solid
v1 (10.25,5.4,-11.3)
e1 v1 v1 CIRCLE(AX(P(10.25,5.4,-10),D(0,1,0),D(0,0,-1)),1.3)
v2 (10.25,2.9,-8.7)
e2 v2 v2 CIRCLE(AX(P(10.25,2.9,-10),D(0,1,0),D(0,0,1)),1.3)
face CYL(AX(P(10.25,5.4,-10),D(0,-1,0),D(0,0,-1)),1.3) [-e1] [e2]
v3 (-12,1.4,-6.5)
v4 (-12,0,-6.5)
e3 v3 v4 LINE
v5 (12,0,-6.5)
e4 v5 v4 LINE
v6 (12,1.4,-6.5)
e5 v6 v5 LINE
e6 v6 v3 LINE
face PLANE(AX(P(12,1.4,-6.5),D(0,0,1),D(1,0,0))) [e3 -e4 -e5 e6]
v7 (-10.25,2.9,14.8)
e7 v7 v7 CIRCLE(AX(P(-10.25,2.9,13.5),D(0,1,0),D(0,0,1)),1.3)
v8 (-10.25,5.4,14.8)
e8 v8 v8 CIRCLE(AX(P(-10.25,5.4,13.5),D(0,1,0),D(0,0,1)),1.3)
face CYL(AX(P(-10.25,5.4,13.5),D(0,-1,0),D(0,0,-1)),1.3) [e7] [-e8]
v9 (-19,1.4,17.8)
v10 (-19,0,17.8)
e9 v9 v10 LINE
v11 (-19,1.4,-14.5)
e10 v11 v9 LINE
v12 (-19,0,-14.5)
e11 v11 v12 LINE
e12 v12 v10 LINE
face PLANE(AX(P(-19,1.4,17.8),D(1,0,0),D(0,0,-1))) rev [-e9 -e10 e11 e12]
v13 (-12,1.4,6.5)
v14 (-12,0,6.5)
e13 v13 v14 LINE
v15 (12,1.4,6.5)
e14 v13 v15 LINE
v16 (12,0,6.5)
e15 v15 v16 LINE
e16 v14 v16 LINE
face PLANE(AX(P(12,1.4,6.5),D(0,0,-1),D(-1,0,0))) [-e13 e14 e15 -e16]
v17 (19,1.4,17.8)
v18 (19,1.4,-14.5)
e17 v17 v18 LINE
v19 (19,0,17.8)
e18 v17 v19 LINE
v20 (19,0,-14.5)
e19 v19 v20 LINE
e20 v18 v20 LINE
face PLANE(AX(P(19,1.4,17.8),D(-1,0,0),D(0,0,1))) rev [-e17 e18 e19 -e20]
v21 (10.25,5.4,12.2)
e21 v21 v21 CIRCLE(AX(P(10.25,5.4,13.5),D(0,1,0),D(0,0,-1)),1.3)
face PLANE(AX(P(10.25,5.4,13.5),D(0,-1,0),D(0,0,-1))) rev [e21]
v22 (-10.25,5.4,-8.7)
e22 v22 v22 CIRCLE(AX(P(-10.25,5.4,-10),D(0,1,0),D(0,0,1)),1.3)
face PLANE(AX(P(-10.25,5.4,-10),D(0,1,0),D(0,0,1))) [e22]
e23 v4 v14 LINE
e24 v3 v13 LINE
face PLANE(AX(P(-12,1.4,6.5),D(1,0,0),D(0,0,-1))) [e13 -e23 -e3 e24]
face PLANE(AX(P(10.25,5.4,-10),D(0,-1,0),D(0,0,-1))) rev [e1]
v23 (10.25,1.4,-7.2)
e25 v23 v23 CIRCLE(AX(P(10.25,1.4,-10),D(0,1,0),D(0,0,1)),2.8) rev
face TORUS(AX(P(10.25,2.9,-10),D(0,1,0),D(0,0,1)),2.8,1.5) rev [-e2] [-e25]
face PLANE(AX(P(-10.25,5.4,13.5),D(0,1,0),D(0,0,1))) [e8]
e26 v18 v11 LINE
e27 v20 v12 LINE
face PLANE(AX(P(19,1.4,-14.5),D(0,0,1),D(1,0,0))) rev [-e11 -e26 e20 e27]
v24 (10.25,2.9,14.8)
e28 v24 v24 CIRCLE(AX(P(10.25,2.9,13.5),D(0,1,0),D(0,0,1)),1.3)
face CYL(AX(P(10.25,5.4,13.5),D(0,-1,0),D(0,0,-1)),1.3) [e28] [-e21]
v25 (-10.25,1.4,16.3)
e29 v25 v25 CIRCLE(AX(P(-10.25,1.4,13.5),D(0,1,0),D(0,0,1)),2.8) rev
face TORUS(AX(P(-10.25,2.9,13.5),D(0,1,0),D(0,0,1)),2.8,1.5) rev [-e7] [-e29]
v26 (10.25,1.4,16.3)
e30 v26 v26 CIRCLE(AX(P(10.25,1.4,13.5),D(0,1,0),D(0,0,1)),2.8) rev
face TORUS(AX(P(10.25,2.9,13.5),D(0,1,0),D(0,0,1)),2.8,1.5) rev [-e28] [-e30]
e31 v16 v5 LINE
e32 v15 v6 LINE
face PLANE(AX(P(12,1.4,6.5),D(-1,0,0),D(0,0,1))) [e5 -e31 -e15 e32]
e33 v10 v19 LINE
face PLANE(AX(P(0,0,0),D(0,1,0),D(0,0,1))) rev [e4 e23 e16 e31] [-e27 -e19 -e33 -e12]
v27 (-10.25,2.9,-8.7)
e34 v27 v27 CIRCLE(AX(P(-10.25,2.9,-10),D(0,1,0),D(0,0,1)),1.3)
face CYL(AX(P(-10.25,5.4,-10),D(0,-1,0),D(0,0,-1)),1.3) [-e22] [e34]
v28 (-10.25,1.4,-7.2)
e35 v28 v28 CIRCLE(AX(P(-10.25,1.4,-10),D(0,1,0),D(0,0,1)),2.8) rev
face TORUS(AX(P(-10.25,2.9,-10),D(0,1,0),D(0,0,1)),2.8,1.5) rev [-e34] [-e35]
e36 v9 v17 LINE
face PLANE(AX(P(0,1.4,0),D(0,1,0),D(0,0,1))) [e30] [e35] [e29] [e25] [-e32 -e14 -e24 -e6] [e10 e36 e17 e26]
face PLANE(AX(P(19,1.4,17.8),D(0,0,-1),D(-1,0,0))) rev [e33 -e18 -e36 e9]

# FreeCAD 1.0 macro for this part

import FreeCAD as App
import Part
import Sketcher
from FreeCAD import Vector
Q = App.Units.Quantity


def edges_at(feature, points):
    """Names of the edges that pass closest to the given points."""
    edges = feature.Shape.Edges
    near = lambda p: min(range(len(edges)), key=lambda i: edges[i].distToShape(Part.Vertex(*p))[0])
    return sorted({f"Edge{near(p) + 1}" for p in points})

doc = App.newDocument("Part")
body = doc.addObject("PartDesign::Body", "Body")

# Sketch on XZ plane
sketch1 = body.newObject("Sketcher::SketchObject", "Sketch")
sketch1.AttachmentSupport = (doc.getObject("XZ_Plane"), [""])
sketch1.MapMode = "FlatFace"
sketch1.addGeometry(Part.LineSegment(Vector(-19, -14, 0), Vector(-19, 18, 0)), False)
sketch1.addGeometry(Part.LineSegment(Vector(-19, 18, 0), Vector(19, 18, 0)), False)
sketch1.addGeometry(Part.LineSegment(Vector(19, 18, 0), Vector(19, -14, 0)), False)
sketch1.addGeometry(Part.LineSegment(Vector(19, -14, 0), Vector(-19, -14, 0)), False)
sketch1.addGeometry(Part.LineSegment(Vector(12, 6, 0), Vector(-12, 6, 0)), False)
sketch1.addGeometry(Part.LineSegment(Vector(-12, 6, 0), Vector(-12, -6, 0)), False)
sketch1.addGeometry(Part.LineSegment(Vector(-12, -6, 0), Vector(12, -6, 0)), False)
sketch1.addGeometry(Part.LineSegment(Vector(12, -6, 0), Vector(12, 6, 0)), False)
sketch1.addConstraint(Sketcher.Constraint("Coincident", 0, 2, 1, 1))
sketch1.addConstraint(Sketcher.Constraint("Coincident", 1, 2, 2, 1))
sketch1.addConstraint(Sketcher.Constraint("Coincident", 2, 2, 3, 1))
sketch1.addConstraint(Sketcher.Constraint("Coincident", 3, 2, 0, 1))
sketch1.addConstraint(Sketcher.Constraint("Coincident", 4, 2, 5, 1))
sketch1.addConstraint(Sketcher.Constraint("Coincident", 5, 2, 6, 1))
sketch1.addConstraint(Sketcher.Constraint("Coincident", 6, 2, 7, 1))
sketch1.addConstraint(Sketcher.Constraint("Coincident", 7, 2, 4, 1))
sketch1.addConstraint(Sketcher.Constraint("Vertical", 0))
sketch1.addConstraint(Sketcher.Constraint("Horizontal", 1))
sketch1.addConstraint(Sketcher.Constraint("Vertical", 2))
sketch1.addConstraint(Sketcher.Constraint("Horizontal", 3))
sketch1.addConstraint(Sketcher.Constraint("Horizontal", 4))
sketch1.addConstraint(Sketcher.Constraint("Vertical", 5))
sketch1.addConstraint(Sketcher.Constraint("Horizontal", 6))
sketch1.addConstraint(Sketcher.Constraint("Vertical", 7))
sketch1.addConstraint(Sketcher.Constraint("Symmetric", 4, 2, 6, 2, -1, 1))
sketch1.addConstraint(Sketcher.Constraint("DistanceX", 1, 1, 1, 2, Q("38 mm")))
sketch1.addConstraint(Sketcher.Constraint("DistanceX", 4, 2, 4, 1, Q("24 mm")))
sketch1.addConstraint(Sketcher.Constraint("DistanceY", 5, 2, 5, 1, Q("13 mm")))
sketch1.addConstraint(Sketcher.Constraint("DistanceY", 0, 1, 0, 2, Q("32.3 mm")))
sketch1.addConstraint(Sketcher.Constraint("DistanceX", 0, 2, -1, 1, Q("19 mm")))
sketch1.addConstraint(Sketcher.Constraint("DistanceY", 3, 2, 4, 2, Q("21 mm")))
pad1 = body.newObject("PartDesign::Pad", "Pad")
pad1.Profile = sketch1
pad1.Length = 1.4
pad1.Reversed = True

# Sketch on XZ plane
sketch2 = body.newObject("Sketcher::SketchObject", "Sketch001")
sketch2.AttachmentSupport = (doc.getObject("XZ_Plane"), [""])
sketch2.MapMode = "FlatFace"
sketch2.AttachmentOffset = App.Placement(Vector(0, 0, -1.4), App.Rotation())
sketch2.addGeometry(Part.Circle(Vector(-10.2, -10, 0), Vector(0, 0, 1), 1.3), False)
sketch2.addGeometry(Part.Circle(Vector(-10.2, 13.5, 0), Vector(0, 0, 1), 1.3), False)
sketch2.addGeometry(Part.Circle(Vector(10.2, 13.5, 0), Vector(0, 0, 1), 1.3), False)
sketch2.addGeometry(Part.Circle(Vector(10.2, -10, 0), Vector(0, 0, 1), 1.3), False)
sketch2.addConstraint(Sketcher.Constraint("Equal", 0, 1))
sketch2.addConstraint(Sketcher.Constraint("Equal", 1, 2))
sketch2.addConstraint(Sketcher.Constraint("Equal", 2, 3))
sketch2.addConstraint(Sketcher.Constraint("Symmetric", 1, 3, 2, 3, -2))
sketch2.addConstraint(Sketcher.Constraint("Symmetric", 0, 3, 3, 3, -2))
sketch2.addConstraint(Sketcher.Constraint("Vertical", 0, 3, 1, 3))
sketch2.addConstraint(Sketcher.Constraint("Diameter", 0, Q("2.6 mm")))
sketch2.addConstraint(Sketcher.Constraint("DistanceY", 0, 3, -1, 1, Q("10 mm")))
sketch2.addConstraint(Sketcher.Constraint("DistanceY", -1, 1, 1, 3, Q("13.5 mm")))
sketch2.addConstraint(Sketcher.Constraint("DistanceX", 1, 3, 2, 3, Q("20.5 mm")))
pad2 = body.newObject("PartDesign::Pad", "Pad001")
pad2.Profile = sketch2
pad2.Length = 4
pad2.Reversed = True
doc.recompute()

fillet = body.newObject("PartDesign::Fillet", "Fillet")
fillet.Base = (pad2, edges_at(pad2, [
    (-10.25, 1.4, -11.3),
    (-10.25, 1.4, 12.2),
    (10.25, 1.4, 14.8),
    (10.25, 1.4, -8.7),
]))
fillet.Radius = 1.5

doc.recompute()
